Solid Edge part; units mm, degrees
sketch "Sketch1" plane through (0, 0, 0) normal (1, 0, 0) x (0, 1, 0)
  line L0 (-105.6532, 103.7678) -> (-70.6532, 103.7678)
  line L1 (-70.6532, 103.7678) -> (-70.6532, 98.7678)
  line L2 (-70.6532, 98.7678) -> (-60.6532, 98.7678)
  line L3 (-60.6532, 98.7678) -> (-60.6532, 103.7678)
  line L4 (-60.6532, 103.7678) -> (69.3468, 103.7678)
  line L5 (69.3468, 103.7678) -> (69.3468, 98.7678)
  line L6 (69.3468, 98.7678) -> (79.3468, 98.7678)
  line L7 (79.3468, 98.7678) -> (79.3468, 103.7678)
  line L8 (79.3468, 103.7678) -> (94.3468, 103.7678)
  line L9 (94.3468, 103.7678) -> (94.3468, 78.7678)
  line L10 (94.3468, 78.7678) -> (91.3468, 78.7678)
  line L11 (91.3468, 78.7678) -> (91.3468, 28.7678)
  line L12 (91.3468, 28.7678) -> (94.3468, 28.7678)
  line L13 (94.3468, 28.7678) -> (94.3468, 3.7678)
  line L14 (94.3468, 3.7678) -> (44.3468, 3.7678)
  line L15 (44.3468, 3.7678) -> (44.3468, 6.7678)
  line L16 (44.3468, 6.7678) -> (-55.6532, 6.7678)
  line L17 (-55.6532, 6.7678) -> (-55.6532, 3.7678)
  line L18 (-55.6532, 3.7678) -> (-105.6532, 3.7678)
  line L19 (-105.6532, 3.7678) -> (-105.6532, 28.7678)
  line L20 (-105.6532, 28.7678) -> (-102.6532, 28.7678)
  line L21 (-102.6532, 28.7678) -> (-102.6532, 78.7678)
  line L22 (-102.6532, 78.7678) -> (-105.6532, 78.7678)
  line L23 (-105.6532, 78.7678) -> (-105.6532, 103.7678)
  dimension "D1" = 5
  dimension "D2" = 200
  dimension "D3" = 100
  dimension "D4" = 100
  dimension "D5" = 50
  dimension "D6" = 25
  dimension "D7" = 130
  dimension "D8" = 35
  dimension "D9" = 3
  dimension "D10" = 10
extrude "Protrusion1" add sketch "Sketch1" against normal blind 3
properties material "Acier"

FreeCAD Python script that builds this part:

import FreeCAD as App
import Part
import Sketcher
Q = App.Units.Quantity


def add_polygon(sketch, points):
    """Adds a closed chain of lines whose ends are joined by coincident constraints."""
    first, n = sketch.GeometryCount, len(points)
    for a, b in zip(points, points[1:] + points[:1]):
        sketch.addGeometry(Part.LineSegment(App.Vector(*a, 0), App.Vector(*b, 0)), False)
    for i in range(n):
        sketch.addConstraint(Sketcher.Constraint("Coincident", first + i, 2, first + (i + 1) % n, 1))

doc = App.newDocument("Part")
body = doc.addObject("PartDesign::Body", "Body")

# Sketch on YZ plane
sketch1 = body.newObject("Sketcher::SketchObject", "Sketch")
sketch1.AttachmentSupport = (doc.getObject("YZ_Plane"), [""])
sketch1.MapMode = "FlatFace"
add_polygon(sketch1, [(-70.7, 103.8), (-105.7, 103.8), (-105.7, 78.8), (-102.7, 78.8), (-102.7, 28.8), (-105.7, 28.8), (-105.7, 3.8), (-55.7, 3.8), (-55.7, 6.8), (44.3, 6.8), (44.3, 3.8), (94.3, 3.8), (94.3, 28.8), (91.3, 28.8), (91.3, 78.8), (94.3, 78.8), (94.3, 103.8), (79.3, 103.8), (79.3, 98.8), (69.3, 98.8), (69.3, 103.8), (-60.7, 103.8), (-60.7, 98.8), (-70.7, 98.8)])  # lines 0-23
sketch1.addConstraint([
    Sketcher.Constraint("Horizontal", 0),
    Sketcher.Constraint("Vertical", 1),
    Sketcher.Constraint("Horizontal", 2),
    Sketcher.Constraint("Vertical", 3),
    Sketcher.Constraint("Horizontal", 4),
    Sketcher.Constraint("Vertical", 5),
    Sketcher.Constraint("Horizontal", 6),
    Sketcher.Constraint("Vertical", 7),
    Sketcher.Constraint("Horizontal", 8),
    Sketcher.Constraint("Vertical", 9),
    Sketcher.Constraint("Horizontal", 10),
    Sketcher.Constraint("Vertical", 11),
    Sketcher.Constraint("Horizontal", 12),
    Sketcher.Constraint("Vertical", 13),
    Sketcher.Constraint("Horizontal", 14),
    Sketcher.Constraint("Vertical", 15),
    Sketcher.Constraint("Horizontal", 16),
    Sketcher.Constraint("Vertical", 17),
    Sketcher.Constraint("Horizontal", 18),
    Sketcher.Constraint("Vertical", 19),
    Sketcher.Constraint("Horizontal", 20),
    Sketcher.Constraint("Vertical", 21),
    Sketcher.Constraint("Horizontal", 22),
    Sketcher.Constraint("Vertical", 23),
    Sketcher.Constraint("Horizontal", 6, 2, 9, 2),
    Sketcher.Constraint("Horizontal", 4, 2, 11, 2),
    Sketcher.Constraint("Horizontal", 2, 2, 13, 2),
    Sketcher.Constraint("Horizontal", 0, 2, 15, 2),
    Sketcher.Constraint("Horizontal", 16, 2, 19, 2),
    Sketcher.Constraint("Horizontal", 18, 2, 21, 2),
    Sketcher.Constraint("Vertical", 1, 2, 4, 2),
    Sketcher.Constraint("Vertical", 11, 2, 14, 2),
    Sketcher.Constraint("Equal", 6, 10),
    Sketcher.Constraint("Equal", 4, 12),
    Sketcher.Constraint("Equal", 18, 22),
    Sketcher.Constraint("Equal", 10, 3),
    Sketcher.Constraint("Equal", 1, 5),
    Sketcher.Constraint("Equal", 14, 7),
    Sketcher.Constraint("DistanceX", 0, 2, 0, 1, Q("35 mm")),
    Sketcher.Constraint("DistanceX", 2, 1, 2, 2, Q("3 mm")),
    Sketcher.Constraint("DistanceX", 6, 1, 6, 2, Q("50 mm")),
    Sketcher.Constraint("DistanceX", 8, 1, 8, 2, Q("100 mm")),
    Sketcher.Constraint("DistanceX", 16, 2, 16, 1, Q("15 mm")),
    Sketcher.Constraint("DistanceX", 18, 2, 18, 1, Q("10 mm")),
    Sketcher.Constraint("DistanceY", 1, 2, 1, 1, Q("25 mm")),
    Sketcher.Constraint("DistanceY", 17, 2, 17, 1, Q("5 mm")),
    Sketcher.Constraint("DistanceX", -1, 1, 8, 2, Q("44.3468 mm")),
    Sketcher.Constraint("DistanceY", -1, 1, 0, 2, Q("103.7678 mm")),
])
pad1 = body.newObject("PartDesign::Pad", "Pad")
pad1.Profile = sketch1
pad1.Length = 3
pad1.Reversed = True

doc.recompute()
